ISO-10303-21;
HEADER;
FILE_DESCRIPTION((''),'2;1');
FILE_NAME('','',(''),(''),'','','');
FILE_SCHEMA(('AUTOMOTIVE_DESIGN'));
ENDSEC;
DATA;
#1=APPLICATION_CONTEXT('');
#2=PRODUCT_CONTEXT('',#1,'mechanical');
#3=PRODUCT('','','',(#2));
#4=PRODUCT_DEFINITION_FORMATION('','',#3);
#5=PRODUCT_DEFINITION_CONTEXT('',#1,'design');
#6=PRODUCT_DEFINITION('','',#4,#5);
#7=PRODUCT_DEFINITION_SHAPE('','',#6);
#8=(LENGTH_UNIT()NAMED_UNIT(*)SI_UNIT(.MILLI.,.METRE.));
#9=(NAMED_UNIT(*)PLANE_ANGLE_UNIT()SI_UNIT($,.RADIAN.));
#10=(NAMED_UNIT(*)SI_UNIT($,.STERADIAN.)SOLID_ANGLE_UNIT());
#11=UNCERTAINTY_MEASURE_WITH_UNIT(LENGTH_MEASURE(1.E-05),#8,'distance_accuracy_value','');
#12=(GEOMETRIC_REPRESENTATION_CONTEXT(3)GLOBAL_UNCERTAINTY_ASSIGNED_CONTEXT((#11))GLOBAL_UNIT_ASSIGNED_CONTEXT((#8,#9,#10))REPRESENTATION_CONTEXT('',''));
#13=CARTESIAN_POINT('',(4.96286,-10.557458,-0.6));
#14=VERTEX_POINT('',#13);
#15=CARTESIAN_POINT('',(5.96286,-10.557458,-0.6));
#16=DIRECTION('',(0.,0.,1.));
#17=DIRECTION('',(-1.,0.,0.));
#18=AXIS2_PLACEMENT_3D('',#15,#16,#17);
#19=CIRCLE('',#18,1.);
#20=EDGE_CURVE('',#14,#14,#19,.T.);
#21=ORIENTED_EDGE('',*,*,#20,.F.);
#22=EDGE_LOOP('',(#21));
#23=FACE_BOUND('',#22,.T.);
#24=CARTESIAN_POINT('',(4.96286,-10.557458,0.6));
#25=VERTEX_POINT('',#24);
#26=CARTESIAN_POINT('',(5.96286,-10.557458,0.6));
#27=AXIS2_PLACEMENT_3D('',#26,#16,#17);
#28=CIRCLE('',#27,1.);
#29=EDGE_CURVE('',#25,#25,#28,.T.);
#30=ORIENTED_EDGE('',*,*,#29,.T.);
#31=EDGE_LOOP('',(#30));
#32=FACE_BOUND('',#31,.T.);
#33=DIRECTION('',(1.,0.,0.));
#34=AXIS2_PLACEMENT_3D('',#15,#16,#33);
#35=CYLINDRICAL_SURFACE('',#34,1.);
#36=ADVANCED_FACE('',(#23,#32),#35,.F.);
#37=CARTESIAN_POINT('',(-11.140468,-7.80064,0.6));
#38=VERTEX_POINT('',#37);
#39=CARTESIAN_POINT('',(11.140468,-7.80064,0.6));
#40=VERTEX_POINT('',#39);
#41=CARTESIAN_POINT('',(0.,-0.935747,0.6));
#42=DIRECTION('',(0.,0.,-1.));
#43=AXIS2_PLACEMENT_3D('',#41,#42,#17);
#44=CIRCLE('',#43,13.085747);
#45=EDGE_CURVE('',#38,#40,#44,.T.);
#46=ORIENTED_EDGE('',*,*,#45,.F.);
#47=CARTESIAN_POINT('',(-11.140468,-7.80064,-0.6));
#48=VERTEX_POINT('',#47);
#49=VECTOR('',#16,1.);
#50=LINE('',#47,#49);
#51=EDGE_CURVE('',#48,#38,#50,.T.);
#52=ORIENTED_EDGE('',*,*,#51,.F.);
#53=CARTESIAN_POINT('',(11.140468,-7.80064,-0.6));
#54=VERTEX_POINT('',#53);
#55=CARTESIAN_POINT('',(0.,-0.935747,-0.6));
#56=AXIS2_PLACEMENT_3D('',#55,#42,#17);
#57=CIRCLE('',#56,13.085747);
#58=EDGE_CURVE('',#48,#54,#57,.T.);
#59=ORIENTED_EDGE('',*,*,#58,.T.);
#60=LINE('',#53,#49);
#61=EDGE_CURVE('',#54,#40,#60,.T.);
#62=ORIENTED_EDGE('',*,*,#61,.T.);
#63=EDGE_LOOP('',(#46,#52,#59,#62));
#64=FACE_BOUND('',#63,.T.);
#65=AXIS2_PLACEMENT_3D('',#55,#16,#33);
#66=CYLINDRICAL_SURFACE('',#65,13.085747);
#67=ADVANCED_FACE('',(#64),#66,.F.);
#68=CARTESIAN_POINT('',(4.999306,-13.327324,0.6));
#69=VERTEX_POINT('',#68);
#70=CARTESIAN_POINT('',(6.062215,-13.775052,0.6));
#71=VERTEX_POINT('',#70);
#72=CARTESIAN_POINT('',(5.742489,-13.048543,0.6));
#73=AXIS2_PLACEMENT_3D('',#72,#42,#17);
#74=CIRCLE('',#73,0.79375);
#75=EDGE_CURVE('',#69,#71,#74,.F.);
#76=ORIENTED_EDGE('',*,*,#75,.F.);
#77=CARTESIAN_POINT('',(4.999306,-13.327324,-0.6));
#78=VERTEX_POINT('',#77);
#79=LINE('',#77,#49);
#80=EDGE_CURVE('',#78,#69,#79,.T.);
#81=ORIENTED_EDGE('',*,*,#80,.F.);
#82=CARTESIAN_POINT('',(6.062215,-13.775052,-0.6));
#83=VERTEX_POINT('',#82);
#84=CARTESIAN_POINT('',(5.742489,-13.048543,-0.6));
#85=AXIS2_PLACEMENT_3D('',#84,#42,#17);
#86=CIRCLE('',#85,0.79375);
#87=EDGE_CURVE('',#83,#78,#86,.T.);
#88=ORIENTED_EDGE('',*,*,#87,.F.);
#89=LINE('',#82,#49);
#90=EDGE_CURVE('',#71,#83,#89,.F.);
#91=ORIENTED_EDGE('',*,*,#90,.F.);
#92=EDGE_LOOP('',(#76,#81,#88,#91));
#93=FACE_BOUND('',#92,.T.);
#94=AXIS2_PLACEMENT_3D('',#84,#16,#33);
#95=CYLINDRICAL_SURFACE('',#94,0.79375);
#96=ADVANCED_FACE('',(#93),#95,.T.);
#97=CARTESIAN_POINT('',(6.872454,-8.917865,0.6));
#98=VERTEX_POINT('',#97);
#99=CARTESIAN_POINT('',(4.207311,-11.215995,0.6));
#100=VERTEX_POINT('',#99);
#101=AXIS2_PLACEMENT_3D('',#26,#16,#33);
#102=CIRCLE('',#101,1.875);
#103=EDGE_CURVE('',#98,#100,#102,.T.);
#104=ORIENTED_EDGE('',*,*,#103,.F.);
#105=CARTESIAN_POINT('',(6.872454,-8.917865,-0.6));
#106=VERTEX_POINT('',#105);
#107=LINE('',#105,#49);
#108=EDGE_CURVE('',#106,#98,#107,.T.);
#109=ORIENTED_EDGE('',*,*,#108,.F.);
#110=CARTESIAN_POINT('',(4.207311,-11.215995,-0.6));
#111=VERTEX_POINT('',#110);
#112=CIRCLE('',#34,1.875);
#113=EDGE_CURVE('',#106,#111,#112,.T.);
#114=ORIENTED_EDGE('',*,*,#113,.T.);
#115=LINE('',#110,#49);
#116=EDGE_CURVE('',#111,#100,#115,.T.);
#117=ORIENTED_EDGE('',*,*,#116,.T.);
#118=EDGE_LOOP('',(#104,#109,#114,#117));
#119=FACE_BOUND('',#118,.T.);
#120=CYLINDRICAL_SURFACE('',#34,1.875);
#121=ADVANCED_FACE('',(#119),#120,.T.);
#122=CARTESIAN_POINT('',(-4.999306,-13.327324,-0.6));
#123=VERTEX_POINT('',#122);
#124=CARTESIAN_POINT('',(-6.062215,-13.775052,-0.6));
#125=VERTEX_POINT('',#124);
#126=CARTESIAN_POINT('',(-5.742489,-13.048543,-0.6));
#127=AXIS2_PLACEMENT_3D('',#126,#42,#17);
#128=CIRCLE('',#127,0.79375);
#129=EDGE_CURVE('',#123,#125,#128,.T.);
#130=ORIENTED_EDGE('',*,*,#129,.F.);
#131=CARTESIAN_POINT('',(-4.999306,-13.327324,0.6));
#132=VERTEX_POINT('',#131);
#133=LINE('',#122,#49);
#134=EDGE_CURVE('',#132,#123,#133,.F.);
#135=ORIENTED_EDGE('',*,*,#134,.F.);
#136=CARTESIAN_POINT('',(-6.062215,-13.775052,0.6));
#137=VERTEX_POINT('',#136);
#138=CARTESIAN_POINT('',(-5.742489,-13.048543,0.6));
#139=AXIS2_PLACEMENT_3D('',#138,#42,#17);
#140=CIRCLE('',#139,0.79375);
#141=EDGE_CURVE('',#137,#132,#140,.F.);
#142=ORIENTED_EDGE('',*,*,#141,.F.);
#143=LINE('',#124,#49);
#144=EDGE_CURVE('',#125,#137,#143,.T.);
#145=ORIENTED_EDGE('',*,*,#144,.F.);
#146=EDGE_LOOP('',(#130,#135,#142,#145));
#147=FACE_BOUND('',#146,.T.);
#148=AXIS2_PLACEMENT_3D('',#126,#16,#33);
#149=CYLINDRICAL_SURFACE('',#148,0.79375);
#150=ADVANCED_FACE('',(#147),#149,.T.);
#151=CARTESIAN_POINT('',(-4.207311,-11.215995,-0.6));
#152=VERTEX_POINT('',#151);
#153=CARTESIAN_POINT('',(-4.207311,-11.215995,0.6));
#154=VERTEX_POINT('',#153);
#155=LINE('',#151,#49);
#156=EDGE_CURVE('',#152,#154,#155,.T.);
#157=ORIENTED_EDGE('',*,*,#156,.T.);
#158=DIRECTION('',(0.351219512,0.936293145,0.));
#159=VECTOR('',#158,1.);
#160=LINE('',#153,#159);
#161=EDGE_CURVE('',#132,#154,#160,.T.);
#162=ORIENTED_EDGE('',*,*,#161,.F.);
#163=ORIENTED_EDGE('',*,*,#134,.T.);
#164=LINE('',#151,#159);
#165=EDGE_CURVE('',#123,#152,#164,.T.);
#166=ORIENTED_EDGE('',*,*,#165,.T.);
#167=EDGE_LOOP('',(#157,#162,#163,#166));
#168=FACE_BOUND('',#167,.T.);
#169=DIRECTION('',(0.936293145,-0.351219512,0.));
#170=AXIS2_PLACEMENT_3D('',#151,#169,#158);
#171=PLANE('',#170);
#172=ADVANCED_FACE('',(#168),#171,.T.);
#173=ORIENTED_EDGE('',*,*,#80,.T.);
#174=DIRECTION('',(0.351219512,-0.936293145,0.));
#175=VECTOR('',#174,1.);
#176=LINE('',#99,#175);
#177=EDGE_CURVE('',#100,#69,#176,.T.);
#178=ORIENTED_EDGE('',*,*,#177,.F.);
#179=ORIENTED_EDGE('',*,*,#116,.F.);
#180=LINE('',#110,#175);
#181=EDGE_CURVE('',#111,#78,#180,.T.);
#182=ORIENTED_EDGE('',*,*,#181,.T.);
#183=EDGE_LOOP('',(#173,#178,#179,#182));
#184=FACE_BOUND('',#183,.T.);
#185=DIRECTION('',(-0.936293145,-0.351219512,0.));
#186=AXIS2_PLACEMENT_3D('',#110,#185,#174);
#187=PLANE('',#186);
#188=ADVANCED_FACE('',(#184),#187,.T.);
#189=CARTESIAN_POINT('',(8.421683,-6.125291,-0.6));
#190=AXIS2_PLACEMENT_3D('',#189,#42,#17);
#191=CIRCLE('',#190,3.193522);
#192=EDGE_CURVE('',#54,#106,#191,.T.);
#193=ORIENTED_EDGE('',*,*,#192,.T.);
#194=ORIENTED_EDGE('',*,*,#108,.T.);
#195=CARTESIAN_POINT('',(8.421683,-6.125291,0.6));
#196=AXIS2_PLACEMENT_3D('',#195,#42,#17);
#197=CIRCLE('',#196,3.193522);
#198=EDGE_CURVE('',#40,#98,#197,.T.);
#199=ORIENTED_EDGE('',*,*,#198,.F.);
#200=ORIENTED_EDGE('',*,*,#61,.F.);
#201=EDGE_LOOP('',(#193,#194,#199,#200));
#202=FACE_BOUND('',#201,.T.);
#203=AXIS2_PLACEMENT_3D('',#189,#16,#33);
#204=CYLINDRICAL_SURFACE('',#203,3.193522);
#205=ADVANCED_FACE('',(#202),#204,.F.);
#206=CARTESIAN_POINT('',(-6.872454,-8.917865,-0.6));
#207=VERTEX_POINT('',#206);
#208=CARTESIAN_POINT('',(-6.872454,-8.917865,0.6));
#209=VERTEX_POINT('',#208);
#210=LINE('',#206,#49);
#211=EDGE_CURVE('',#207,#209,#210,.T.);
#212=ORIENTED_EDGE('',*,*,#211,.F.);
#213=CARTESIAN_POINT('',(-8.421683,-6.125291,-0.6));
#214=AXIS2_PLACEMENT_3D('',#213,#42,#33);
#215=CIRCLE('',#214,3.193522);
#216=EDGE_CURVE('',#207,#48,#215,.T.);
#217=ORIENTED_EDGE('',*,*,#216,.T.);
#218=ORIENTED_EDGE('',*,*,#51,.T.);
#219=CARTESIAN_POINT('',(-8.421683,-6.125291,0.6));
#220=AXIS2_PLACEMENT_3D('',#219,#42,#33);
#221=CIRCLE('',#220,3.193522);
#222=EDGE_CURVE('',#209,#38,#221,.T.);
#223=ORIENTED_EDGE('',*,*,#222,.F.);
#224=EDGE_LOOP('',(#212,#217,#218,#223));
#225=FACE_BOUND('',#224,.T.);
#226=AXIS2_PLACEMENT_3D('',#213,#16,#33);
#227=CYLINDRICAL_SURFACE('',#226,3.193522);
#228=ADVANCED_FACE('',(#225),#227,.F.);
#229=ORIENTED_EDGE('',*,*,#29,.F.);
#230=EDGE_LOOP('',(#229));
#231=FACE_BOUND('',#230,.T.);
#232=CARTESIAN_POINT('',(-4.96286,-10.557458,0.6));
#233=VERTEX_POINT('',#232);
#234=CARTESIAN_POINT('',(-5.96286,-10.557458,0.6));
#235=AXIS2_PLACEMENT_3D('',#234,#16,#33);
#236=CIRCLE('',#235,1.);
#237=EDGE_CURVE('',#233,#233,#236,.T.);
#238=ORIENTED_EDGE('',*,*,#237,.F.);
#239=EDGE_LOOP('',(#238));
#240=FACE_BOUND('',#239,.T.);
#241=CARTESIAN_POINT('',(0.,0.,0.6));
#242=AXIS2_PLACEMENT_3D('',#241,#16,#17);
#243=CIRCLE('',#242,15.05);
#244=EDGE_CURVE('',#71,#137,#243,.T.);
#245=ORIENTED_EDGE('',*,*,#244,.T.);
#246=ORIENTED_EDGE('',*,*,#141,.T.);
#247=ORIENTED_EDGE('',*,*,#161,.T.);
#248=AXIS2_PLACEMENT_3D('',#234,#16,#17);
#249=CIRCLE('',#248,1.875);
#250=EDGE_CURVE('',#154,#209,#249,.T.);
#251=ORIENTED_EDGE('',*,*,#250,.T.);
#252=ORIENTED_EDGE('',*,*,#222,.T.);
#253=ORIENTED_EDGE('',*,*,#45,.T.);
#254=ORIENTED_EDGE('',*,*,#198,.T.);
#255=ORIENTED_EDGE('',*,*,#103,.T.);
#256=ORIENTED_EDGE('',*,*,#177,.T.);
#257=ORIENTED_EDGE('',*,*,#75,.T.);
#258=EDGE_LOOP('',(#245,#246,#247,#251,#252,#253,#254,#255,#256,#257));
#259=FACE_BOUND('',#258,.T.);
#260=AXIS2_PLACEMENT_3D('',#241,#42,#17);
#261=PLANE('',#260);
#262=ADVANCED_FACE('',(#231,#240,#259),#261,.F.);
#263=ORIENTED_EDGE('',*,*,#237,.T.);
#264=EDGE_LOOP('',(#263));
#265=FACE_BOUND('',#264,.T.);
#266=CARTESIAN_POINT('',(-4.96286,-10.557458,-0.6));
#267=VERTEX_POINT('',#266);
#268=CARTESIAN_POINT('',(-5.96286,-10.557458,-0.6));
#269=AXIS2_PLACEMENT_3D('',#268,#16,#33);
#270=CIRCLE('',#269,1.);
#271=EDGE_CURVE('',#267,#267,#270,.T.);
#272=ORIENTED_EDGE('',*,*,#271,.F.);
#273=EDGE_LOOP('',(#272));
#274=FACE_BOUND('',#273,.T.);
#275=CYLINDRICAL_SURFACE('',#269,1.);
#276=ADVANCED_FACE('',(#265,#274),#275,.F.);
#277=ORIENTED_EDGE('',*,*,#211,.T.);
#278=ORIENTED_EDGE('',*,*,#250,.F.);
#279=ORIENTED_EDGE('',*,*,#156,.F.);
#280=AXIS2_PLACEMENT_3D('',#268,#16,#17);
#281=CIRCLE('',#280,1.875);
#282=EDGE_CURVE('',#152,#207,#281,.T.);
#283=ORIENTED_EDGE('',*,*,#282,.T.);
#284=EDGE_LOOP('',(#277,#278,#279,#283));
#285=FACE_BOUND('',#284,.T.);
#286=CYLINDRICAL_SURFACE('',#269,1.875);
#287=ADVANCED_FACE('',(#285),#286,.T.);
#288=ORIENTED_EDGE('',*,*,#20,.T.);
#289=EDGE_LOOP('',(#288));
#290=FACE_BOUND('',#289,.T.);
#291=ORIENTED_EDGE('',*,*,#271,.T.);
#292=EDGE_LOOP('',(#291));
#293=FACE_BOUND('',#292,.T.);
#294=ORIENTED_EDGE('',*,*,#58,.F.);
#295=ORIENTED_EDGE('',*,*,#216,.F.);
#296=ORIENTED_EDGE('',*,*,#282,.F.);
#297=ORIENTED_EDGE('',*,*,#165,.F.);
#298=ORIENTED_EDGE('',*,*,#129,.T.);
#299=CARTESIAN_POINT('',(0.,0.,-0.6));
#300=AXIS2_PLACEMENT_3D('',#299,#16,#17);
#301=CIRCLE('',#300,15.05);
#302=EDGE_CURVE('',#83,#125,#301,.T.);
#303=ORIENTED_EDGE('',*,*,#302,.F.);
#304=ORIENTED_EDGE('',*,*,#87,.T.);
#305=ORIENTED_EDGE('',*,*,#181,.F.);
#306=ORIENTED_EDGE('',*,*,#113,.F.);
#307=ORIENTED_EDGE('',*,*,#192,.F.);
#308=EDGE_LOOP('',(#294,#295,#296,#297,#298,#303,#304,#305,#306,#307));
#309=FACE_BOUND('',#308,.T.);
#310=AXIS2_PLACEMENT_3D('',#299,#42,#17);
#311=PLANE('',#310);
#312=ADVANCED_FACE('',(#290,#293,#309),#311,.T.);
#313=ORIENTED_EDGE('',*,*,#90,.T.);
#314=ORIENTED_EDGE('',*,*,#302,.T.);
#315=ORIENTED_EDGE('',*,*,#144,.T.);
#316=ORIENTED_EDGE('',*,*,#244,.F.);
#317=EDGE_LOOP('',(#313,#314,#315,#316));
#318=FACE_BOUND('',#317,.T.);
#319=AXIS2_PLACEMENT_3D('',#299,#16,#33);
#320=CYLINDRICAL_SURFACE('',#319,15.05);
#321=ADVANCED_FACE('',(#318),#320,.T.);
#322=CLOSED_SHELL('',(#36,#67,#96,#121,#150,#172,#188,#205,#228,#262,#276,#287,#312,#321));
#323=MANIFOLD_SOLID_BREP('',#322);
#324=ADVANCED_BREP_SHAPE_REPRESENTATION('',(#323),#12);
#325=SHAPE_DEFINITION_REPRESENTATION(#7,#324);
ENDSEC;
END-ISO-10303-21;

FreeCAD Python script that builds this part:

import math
import FreeCAD as App
import Part
import Sketcher
Q = App.Units.Quantity


def edges_at(feature, points):
    """Names of the edges that pass closest to the given points."""
    edges = feature.Shape.Edges
    near = lambda p: min(range(len(edges)), key=lambda i: edges[i].distToShape(Part.Vertex(*p))[0])
    return sorted({f"Edge{near(p) + 1}" for p in points})

doc = App.newDocument("Part")
params = doc.addObject("Spreadsheet::Sheet", "Params")
for row, (alias, value) in enumerate([
    ("sketch1_diameter", "2 mm"),
    ("sketch1_radius", "15.05 mm"),
    ("pad1_length", "0.6 mm"),
    ("pad1_length2", "0.6 mm"),
    ("fillet_radius", "0.79375 mm"),
], start=1):
    params.set(f"A{row}", alias)
    params.set(f"B{row}", "=" + value)
    params.setAlias(f"B{row}", alias)

body = doc.addObject("PartDesign::Body", "Body")

# Sketch on XY plane
sketch1 = doc.addObject("Sketcher::SketchObject", "Sketch")
body.addObject(sketch1)
sketch1.AttachmentSupport = (doc.XY_Plane, [""])
sketch1.MapMode = "FlatFace"
sketch1.addGeometry([
    Part.LineSegment(App.Vector(-5.285854, -14.091212, 0), App.Vector(-4.207311, -11.215995, 0)),  # 0
    Part.ArcOfCircle(Part.Circle(App.Vector(-5.96286, -10.557458, 0), App.Vector(0, 0, 1), 1.875), math.radians(-20.561924), math.radians(119.020097)),  # 1
    Part.ArcOfCircle(Part.Circle(App.Vector(-8.421683, -6.125291, 0), App.Vector(0, 0, 1), 3.193522), math.radians(-148.358116), math.radians(-60.979903)),  # 2
    Part.ArcOfCircle(Part.Circle(App.Vector(0, -0.935747, 0), App.Vector(0, 0, 1), 13.085747), math.radians(-31.641884), math.radians(211.641884)),  # 3
    Part.ArcOfCircle(Part.Circle(App.Vector(8.421683, -6.125291, 0), App.Vector(0, 0, 1), 3.193522), math.radians(-119.020097), math.radians(-31.641884)),  # 4
    Part.ArcOfCircle(Part.Circle(App.Vector(5.96286, -10.557458, 0), App.Vector(0, 0, 1), 1.875), math.radians(60.979903), math.radians(200.561924)),  # 5
    Part.LineSegment(App.Vector(4.207311, -11.215995, 0), App.Vector(5.285854, -14.091212, 0)),  # 6
    Part.ArcOfCircle(Part.Circle(App.Vector(0, 0, 0), App.Vector(0, 0, 1), 15.05), math.radians(-69.438076), math.radians(249.438076)),  # 7
    Part.Circle(App.Vector(5.96286, -10.557458, 0), App.Vector(0, 0, 1), 1),  # 8
    Part.Circle(App.Vector(-5.96286, -10.557458, 0), App.Vector(0, 0, 1), 1),  # 9
], False)
sketch1.addConstraint([
    Sketcher.Constraint("Tangent", 0, 2, 1, 1),
    Sketcher.Constraint("Tangent", 1, 2, 2, 2),
    Sketcher.Constraint("Tangent", 2, 1, 3, 2),
    Sketcher.Constraint("Tangent", 3, 1, 4, 2),
    Sketcher.Constraint("Tangent", 4, 1, 5, 1),
    Sketcher.Constraint("Tangent", 5, 2, 6, 1),
    Sketcher.Constraint("Coincident", 6, 2, 7, 1),
    Sketcher.Constraint("Coincident", 7, 2, 0, 1),
    Sketcher.Constraint("Coincident", 7, 3, -1, 1),
    Sketcher.Constraint("Coincident", 8, 3, 5, 3),
    Sketcher.Constraint("Coincident", 9, 3, 1, 3),
    Sketcher.Constraint("Equal", 2, 4),
    Sketcher.Constraint("Equal", 1, 5),
    Sketcher.Constraint("Equal", 8, 9),
    Sketcher.Constraint("Symmetric", 2, 3, 4, 3, -2),
    Sketcher.Constraint("Symmetric", 0, 2, 5, 2, -2),
    Sketcher.Constraint("Diameter", 8, Q("2 mm")),
    Sketcher.Constraint("Radius", 7, Q("15.05 mm")),
    Sketcher.Constraint("Radius", 1, Q("1.875 mm")),
    Sketcher.Constraint("Radius", 2, Q("3.193522 mm")),
    Sketcher.Constraint("Radius", 3, Q("13.085747 mm")),
    Sketcher.Constraint("DistanceX", 6, 2, 4, 1, Q("1.5866 mm")),
    Sketcher.Constraint("Distance", 0, Q("3.070851 mm")),
    Sketcher.Constraint("DistanceX", 1, 3, -1, 1, Q("5.96286 mm")),
    Sketcher.Constraint("DistanceY", 1, 3, -1, 1, Q("10.557458 mm")),
])
sketch1.setExpression("Constraints[16]", "Params.sketch1_diameter")
sketch1.setExpression("Constraints[17]", "Params.sketch1_radius")
pad1 = doc.addObject("PartDesign::Pad", "Pad")
body.addObject(pad1)
pad1.Profile = sketch1
pad1.Type = "TwoLengths"
pad1.setExpression("Length", "Params.pad1_length")
pad1.setExpression("Length2", "Params.pad1_length2")
doc.recompute()

fillet = doc.addObject("PartDesign::Fillet", "Fillet")
body.addObject(fillet)
fillet.Base = (pad1, edges_at(pad1, [(5.286, -14.091, 0), (-5.286, -14.091, 0)]))
fillet.setExpression("Radius", "Params.fillet_radius")

doc.recompute()
